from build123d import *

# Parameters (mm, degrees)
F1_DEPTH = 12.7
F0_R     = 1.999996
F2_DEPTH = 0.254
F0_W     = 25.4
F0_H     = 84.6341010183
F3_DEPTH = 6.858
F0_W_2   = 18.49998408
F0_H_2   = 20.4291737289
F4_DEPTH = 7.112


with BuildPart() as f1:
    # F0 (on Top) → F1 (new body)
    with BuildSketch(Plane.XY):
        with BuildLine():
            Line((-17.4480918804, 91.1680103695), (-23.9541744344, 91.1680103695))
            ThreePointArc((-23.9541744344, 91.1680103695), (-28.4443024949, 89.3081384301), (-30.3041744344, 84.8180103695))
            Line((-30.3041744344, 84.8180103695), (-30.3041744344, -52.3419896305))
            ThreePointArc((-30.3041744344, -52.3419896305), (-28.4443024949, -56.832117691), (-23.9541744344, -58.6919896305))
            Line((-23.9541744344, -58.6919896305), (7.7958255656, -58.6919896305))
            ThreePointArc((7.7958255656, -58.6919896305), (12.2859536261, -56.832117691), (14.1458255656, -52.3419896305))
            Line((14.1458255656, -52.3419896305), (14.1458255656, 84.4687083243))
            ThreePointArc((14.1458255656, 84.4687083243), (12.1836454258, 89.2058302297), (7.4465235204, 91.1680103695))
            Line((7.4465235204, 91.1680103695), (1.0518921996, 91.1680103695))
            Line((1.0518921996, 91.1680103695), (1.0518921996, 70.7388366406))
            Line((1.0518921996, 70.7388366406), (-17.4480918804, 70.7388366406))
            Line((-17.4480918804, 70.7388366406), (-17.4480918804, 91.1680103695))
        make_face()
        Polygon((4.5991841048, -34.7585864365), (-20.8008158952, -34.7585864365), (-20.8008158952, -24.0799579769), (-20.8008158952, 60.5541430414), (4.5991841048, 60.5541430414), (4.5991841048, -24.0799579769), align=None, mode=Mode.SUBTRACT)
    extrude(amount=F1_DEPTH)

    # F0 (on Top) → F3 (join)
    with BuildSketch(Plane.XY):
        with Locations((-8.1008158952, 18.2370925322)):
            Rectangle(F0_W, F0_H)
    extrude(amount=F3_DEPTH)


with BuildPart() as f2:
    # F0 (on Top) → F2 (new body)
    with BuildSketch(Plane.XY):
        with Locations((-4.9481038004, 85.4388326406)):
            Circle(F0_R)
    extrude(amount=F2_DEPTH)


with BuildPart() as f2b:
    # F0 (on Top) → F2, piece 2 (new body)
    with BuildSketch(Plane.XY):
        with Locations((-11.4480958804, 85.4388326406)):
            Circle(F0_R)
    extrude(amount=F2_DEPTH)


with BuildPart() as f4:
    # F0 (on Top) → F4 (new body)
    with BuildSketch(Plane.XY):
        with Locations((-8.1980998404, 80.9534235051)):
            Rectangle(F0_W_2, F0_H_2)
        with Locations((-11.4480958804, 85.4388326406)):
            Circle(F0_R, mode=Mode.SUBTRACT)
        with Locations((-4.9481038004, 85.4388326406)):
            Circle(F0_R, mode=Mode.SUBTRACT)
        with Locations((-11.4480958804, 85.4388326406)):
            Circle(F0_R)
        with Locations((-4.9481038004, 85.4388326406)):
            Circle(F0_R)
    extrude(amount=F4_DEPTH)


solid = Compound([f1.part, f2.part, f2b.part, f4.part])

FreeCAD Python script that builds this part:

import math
import FreeCAD as App
import Part
import Sketcher
Q = App.Units.Quantity


def add_polygon(sketch, points):
    """Adds a closed chain of lines whose ends are joined by coincident constraints."""
    first, n = sketch.GeometryCount, len(points)
    for a, b in zip(points, points[1:] + points[:1]):
        sketch.addGeometry(Part.LineSegment(App.Vector(*a, 0), App.Vector(*b, 0)), False)
    for i in range(n):
        sketch.addConstraint(Sketcher.Constraint("Coincident", first + i, 2, first + (i + 1) % n, 1))

doc = App.newDocument("Part")
body = doc.addObject("PartDesign::Body", "Body")

sketch1 = doc.addObject("Sketcher::SketchObject", "Sketch")
body.addObject(sketch1)
sketch1.AttachmentSupport = (doc.XY_Plane, [""])
sketch1.MapMode = "FlatFace"
sketch1.addGeometry(Part.LineSegment(App.Vector(-17.448092, 91.16801, 0), App.Vector(-23.954174, 91.16801, 0)), False)
sketch1.addGeometry(Part.ArcOfCircle(Part.Circle(App.Vector(-23.954174, 84.81801, 0), App.Vector(0, 0, 1), 6.35), math.radians(90), math.radians(180)), False)
sketch1.addGeometry(Part.LineSegment(App.Vector(-30.304174, 84.81801, 0), App.Vector(-30.304174, -52.34199, 0)), False)
sketch1.addGeometry(Part.ArcOfCircle(Part.Circle(App.Vector(-23.954174, -52.34199, 0), App.Vector(0, 0, 1), 6.35), math.radians(-180), math.radians(-90)), False)
sketch1.addGeometry(Part.LineSegment(App.Vector(-23.954174, -58.69199, 0), App.Vector(7.795826, -58.69199, 0)), False)
sketch1.addGeometry(Part.ArcOfCircle(Part.Circle(App.Vector(7.795826, -52.34199, 0), App.Vector(0, 0, 1), 6.35), math.radians(-90), math.radians(0)), False)
sketch1.addGeometry(Part.LineSegment(App.Vector(14.145826, -52.34199, 0), App.Vector(14.145826, 84.468708, 0)), False)
sketch1.addGeometry(Part.ArcOfCircle(Part.Circle(App.Vector(7.446524, 84.468708, 0), App.Vector(0, 0, 1), 6.699302), math.radians(0), math.radians(90)), False)
sketch1.addGeometry(Part.LineSegment(App.Vector(7.446524, 91.16801, 0), App.Vector(1.051892, 91.16801, 0)), False)
sketch1.addGeometry(Part.LineSegment(App.Vector(1.051892, 91.16801, 0), App.Vector(1.051892, 70.738837, 0)), False)
sketch1.addGeometry(Part.LineSegment(App.Vector(1.051892, 70.738837, 0), App.Vector(-17.448092, 70.738837, 0)), False)
sketch1.addGeometry(Part.LineSegment(App.Vector(-17.448092, 70.738837, 0), App.Vector(-17.448092, 91.16801, 0)), False)
add_polygon(sketch1, [(4.599184, 60.554143), (4.599184, -34.758586), (-20.800816, -34.758586), (-20.800816, 60.554143)])
sketch1.addConstraint(Sketcher.Constraint("Tangent", 0, 2, 1, 1))
sketch1.addConstraint(Sketcher.Constraint("Tangent", 1, 2, 2, 1))
sketch1.addConstraint(Sketcher.Constraint("Tangent", 2, 2, 3, 1))
sketch1.addConstraint(Sketcher.Constraint("Tangent", 3, 2, 4, 1))
sketch1.addConstraint(Sketcher.Constraint("Tangent", 4, 2, 5, 1))
sketch1.addConstraint(Sketcher.Constraint("Tangent", 5, 2, 6, 1))
sketch1.addConstraint(Sketcher.Constraint("Tangent", 6, 2, 7, 1))
sketch1.addConstraint(Sketcher.Constraint("Tangent", 7, 2, 8, 1))
sketch1.addConstraint(Sketcher.Constraint("Coincident", 8, 2, 9, 1))
sketch1.addConstraint(Sketcher.Constraint("Coincident", 9, 2, 10, 1))
sketch1.addConstraint(Sketcher.Constraint("Coincident", 10, 2, 11, 1))
sketch1.addConstraint(Sketcher.Constraint("Coincident", 11, 2, 0, 1))
sketch1.addConstraint(Sketcher.Constraint("Horizontal", 0))
sketch1.addConstraint(Sketcher.Constraint("Vertical", 2))
sketch1.addConstraint(Sketcher.Constraint("Horizontal", 4))
sketch1.addConstraint(Sketcher.Constraint("Vertical", 6))
sketch1.addConstraint(Sketcher.Constraint("Horizontal", 8))
sketch1.addConstraint(Sketcher.Constraint("Vertical", 9))
sketch1.addConstraint(Sketcher.Constraint("Horizontal", 10))
sketch1.addConstraint(Sketcher.Constraint("Vertical", 11))
sketch1.addConstraint(Sketcher.Constraint("Vertical", 12))
sketch1.addConstraint(Sketcher.Constraint("Horizontal", 13))
sketch1.addConstraint(Sketcher.Constraint("Vertical", 14))
sketch1.addConstraint(Sketcher.Constraint("Horizontal", 15))
sketch1.addConstraint(Sketcher.Constraint("Equal", 1, 3))
sketch1.addConstraint(Sketcher.Constraint("Equal", 3, 5))
sketch1.addConstraint(Sketcher.Constraint("Horizontal", 0, 2, 7, 2))
sketch1.addConstraint(Sketcher.Constraint("DistanceX", 13, 2, 13, 1, Q("1 in")))
sketch1.addConstraint(Sketcher.Constraint("Radius", 1, Q("0.25 in")))
sketch1.addConstraint(Sketcher.Constraint("DistanceY", 2, 2, 2, 1, Q("5.4 in")))
sketch1.addConstraint(Sketcher.Constraint("DistanceX", 4, 1, 4, 2, Q("1.25 in")))
sketch1.addConstraint(Sketcher.Constraint("Radius", 7, 6.699302))
sketch1.addConstraint(Sketcher.Constraint("DistanceX", 15, 2, 7, 3, Q("0.1121 in")))
sketch1.addConstraint(Sketcher.Constraint("DistanceX", 8, 2, 8, 1, 6.394631))
sketch1.addConstraint(Sketcher.Constraint("DistanceY", 12, 2, 12, 1, 95.312729))
sketch1.addConstraint(Sketcher.Constraint("DistanceX", 0, 2, 0, 1, 6.506083))
sketch1.addConstraint(Sketcher.Constraint("DistanceY", 9, 2, 9, 1, 20.429174))
sketch1.addConstraint(Sketcher.Constraint("DistanceY", -1, 1, 1, 3, 84.81801))
sketch1.addConstraint(Sketcher.Constraint("DistanceX", 10, 2, -1, 1, 17.448092))
sketch1.addConstraint(Sketcher.Constraint("DistanceY", 12, 2, -1, 1, 34.758586))
pad1 = doc.addObject("PartDesign::Pad", "Pad")
body.addObject(pad1)
pad1.Profile = sketch1
pad1.Length = Q("0.5 in")

sketch2 = doc.addObject("Sketcher::SketchObject", "Sketch001")
body.addObject(sketch2)
sketch2.AttachmentSupport = (doc.XY_Plane, [""])
sketch2.MapMode = "FlatFace"
add_polygon(sketch2, [(-20.800816, 60.554143), (-20.800816, -24.079958), (4.599184, -24.079958), (4.599184, 60.554143)])
sketch2.addConstraint(Sketcher.Constraint("Vertical", 0))
sketch2.addConstraint(Sketcher.Constraint("Horizontal", 1))
sketch2.addConstraint(Sketcher.Constraint("Vertical", 2))
sketch2.addConstraint(Sketcher.Constraint("Horizontal", 3))
sketch2.addConstraint(Sketcher.Constraint("DistanceX", 1, 1, 1, 2, Q("1 in")))
sketch2.addConstraint(Sketcher.Constraint("DistanceY", 0, 2, 0, 1, 84.634101))
sketch2.addConstraint(Sketcher.Constraint("DistanceX", 0, 2, -1, 1, 20.800816))
sketch2.addConstraint(Sketcher.Constraint("DistanceY", 0, 2, -1, 1, 24.079958))
pad2 = doc.addObject("PartDesign::Pad", "Pad001")
body.addObject(pad2)
pad2.Profile = sketch2
pad2.Length = Q("0.27 in")
body2 = doc.addObject("PartDesign::Body", "Body001")

sketch3 = doc.addObject("Sketcher::SketchObject", "Sketch002")
body2.addObject(sketch3)
sketch3.AttachmentSupport = (doc.getObject("XY_Plane001"), [""])
sketch3.MapMode = "FlatFace"
sketch3.addGeometry(Part.Circle(App.Vector(-4.948104, 85.438833, 0), App.Vector(0, 0, 1), 1.999996), False)
sketch3.addConstraint(Sketcher.Constraint("Diameter", 0, 3.999992))
sketch3.addConstraint(Sketcher.Constraint("DistanceX", 0, 3, -1, 1, 4.948104))
sketch3.addConstraint(Sketcher.Constraint("DistanceY", -1, 1, 0, 3, 85.438833))
pad3 = doc.addObject("PartDesign::Pad", "Pad002")
body2.addObject(pad3)
pad3.Profile = sketch3
pad3.Length = Q("0.01 in")
body3 = doc.addObject("PartDesign::Body", "Body002")

sketch4 = doc.addObject("Sketcher::SketchObject", "Sketch003")
body3.addObject(sketch4)
sketch4.AttachmentSupport = (doc.getObject("XY_Plane002"), [""])
sketch4.MapMode = "FlatFace"
sketch4.addGeometry(Part.Circle(App.Vector(-11.448096, 85.438833, 0), App.Vector(0, 0, 1), 1.999996), False)
sketch4.addConstraint(Sketcher.Constraint("Diameter", 0, 3.999992))
sketch4.addConstraint(Sketcher.Constraint("DistanceX", 0, 3, -1, 1, 11.448096))
sketch4.addConstraint(Sketcher.Constraint("DistanceY", -1, 1, 0, 3, 85.438833))
pad4 = doc.addObject("PartDesign::Pad", "Pad003")
body3.addObject(pad4)
pad4.Profile = sketch4
pad4.Length = Q("0.01 in")
body4 = doc.addObject("PartDesign::Body", "Body003")

sketch5 = doc.addObject("Sketcher::SketchObject", "Sketch004")
body4.addObject(sketch5)
sketch5.AttachmentSupport = (doc.getObject("XY_Plane003"), [""])
sketch5.MapMode = "FlatFace"
add_polygon(sketch5, [(-17.448092, 91.16801), (-17.448092, 70.738837), (1.051892, 70.738837), (1.051892, 91.16801)])
sketch5.addConstraint(Sketcher.Constraint("Vertical", 0))
sketch5.addConstraint(Sketcher.Constraint("Horizontal", 1))
sketch5.addConstraint(Sketcher.Constraint("Vertical", 2))
sketch5.addConstraint(Sketcher.Constraint("Horizontal", 3))
sketch5.addConstraint(Sketcher.Constraint("DistanceX", 1, 1, 1, 2, 18.499984))
sketch5.addConstraint(Sketcher.Constraint("DistanceY", 0, 2, 0, 1, 20.429174))
sketch5.addConstraint(Sketcher.Constraint("DistanceX", 0, 2, -1, 1, 17.448092))
sketch5.addConstraint(Sketcher.Constraint("DistanceY", -1, 1, 2, 2, 91.16801))
pad5 = doc.addObject("PartDesign::Pad", "Pad004")
body4.addObject(pad5)
pad5.Profile = sketch5
pad5.Length = Q("0.28 in")

doc.recompute()
